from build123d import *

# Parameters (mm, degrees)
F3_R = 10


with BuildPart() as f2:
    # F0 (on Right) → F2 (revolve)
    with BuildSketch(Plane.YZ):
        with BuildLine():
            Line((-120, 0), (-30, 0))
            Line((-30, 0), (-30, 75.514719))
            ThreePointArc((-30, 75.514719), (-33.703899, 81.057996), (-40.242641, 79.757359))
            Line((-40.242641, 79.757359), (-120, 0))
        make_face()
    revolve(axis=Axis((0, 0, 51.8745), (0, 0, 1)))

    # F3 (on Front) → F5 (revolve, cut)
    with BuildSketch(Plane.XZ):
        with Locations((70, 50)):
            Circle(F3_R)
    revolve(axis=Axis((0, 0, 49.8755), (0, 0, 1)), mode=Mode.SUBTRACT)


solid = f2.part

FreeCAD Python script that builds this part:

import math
import FreeCAD as App
import Part
import Sketcher
Q = App.Units.Quantity

doc = App.newDocument("Part")
body = doc.addObject("PartDesign::Body", "Body")

sketch1 = body.newObject("Sketcher::SketchObject", "Sketch")
sketch1.AttachmentSupport = (doc.getObject("YZ_Plane"), [""])
sketch1.MapMode = "FlatFace"
sketch1.addGeometry(Part.LineSegment(App.Vector(-120, 0, 0), App.Vector(-30, 0, 0)), False)
sketch1.addGeometry(Part.LineSegment(App.Vector(-30, 0, 0), App.Vector(-30, 75.514719, 0)), False)
sketch1.addGeometry(Part.ArcOfCircle(Part.Circle(App.Vector(-36, 75.514719, 0), App.Vector(0, 0, 1), 6), math.radians(-0.000001), math.radians(135.000009)), False)
sketch1.addGeometry(Part.LineSegment(App.Vector(-40.242641, 79.757359, 0), App.Vector(-120, 0, 0)), False)
sketch1.addConstraint(Sketcher.Constraint("Coincident", 0, 2, 1, 1))
sketch1.addConstraint(Sketcher.Constraint("Tangent", 1, 2, 2, 1))
sketch1.addConstraint(Sketcher.Constraint("Tangent", 2, 2, 3, 1))
sketch1.addConstraint(Sketcher.Constraint("Coincident", 3, 2, 0, 1))
sketch1.addConstraint(Sketcher.Constraint("Horizontal", 0))
sketch1.addConstraint(Sketcher.Constraint("Vertical", 1))
sketch1.addConstraint(Sketcher.Constraint("PointOnObject", 0, 2, -1))
sketch1.addConstraint(Sketcher.Constraint("Radius", 2, 6.0))
sketch1.addConstraint(Sketcher.Constraint("DistanceX", 0, 1, 0, 2, 90.0))
sketch1.addConstraint(Sketcher.Constraint("Angle", 3, Q("-135 deg")))
sketch1.addConstraint(Sketcher.Constraint("DistanceX", 2, 3, -1, 1, 36.0))
revolution = body.newObject("PartDesign::Revolution", "Revolution")
revolution.Profile = sketch1
revolution.ReferenceAxis = (sketch1, ["V_Axis"])
revolution.Angle = 360

sketch2 = body.newObject("Sketcher::SketchObject", "Sketch001")
sketch2.AttachmentSupport = (doc.getObject("XZ_Plane"), [""])
sketch2.MapMode = "FlatFace"
sketch2.addGeometry(Part.Circle(App.Vector(70, 50, 0), App.Vector(0, 0, 1), 10), False)
sketch2.addConstraint(Sketcher.Constraint("Diameter", 0, 20.0))
sketch2.addConstraint(Sketcher.Constraint("DistanceX", -1, 1, 0, 3, 70.0))
sketch2.addConstraint(Sketcher.Constraint("DistanceY", -1, 1, 0, 3, 50.0))
groove = body.newObject("PartDesign::Groove", "Groove")
groove.Profile = sketch2
groove.ReferenceAxis = (sketch2, ["V_Axis"])
groove.Angle = 360

doc.recompute()
